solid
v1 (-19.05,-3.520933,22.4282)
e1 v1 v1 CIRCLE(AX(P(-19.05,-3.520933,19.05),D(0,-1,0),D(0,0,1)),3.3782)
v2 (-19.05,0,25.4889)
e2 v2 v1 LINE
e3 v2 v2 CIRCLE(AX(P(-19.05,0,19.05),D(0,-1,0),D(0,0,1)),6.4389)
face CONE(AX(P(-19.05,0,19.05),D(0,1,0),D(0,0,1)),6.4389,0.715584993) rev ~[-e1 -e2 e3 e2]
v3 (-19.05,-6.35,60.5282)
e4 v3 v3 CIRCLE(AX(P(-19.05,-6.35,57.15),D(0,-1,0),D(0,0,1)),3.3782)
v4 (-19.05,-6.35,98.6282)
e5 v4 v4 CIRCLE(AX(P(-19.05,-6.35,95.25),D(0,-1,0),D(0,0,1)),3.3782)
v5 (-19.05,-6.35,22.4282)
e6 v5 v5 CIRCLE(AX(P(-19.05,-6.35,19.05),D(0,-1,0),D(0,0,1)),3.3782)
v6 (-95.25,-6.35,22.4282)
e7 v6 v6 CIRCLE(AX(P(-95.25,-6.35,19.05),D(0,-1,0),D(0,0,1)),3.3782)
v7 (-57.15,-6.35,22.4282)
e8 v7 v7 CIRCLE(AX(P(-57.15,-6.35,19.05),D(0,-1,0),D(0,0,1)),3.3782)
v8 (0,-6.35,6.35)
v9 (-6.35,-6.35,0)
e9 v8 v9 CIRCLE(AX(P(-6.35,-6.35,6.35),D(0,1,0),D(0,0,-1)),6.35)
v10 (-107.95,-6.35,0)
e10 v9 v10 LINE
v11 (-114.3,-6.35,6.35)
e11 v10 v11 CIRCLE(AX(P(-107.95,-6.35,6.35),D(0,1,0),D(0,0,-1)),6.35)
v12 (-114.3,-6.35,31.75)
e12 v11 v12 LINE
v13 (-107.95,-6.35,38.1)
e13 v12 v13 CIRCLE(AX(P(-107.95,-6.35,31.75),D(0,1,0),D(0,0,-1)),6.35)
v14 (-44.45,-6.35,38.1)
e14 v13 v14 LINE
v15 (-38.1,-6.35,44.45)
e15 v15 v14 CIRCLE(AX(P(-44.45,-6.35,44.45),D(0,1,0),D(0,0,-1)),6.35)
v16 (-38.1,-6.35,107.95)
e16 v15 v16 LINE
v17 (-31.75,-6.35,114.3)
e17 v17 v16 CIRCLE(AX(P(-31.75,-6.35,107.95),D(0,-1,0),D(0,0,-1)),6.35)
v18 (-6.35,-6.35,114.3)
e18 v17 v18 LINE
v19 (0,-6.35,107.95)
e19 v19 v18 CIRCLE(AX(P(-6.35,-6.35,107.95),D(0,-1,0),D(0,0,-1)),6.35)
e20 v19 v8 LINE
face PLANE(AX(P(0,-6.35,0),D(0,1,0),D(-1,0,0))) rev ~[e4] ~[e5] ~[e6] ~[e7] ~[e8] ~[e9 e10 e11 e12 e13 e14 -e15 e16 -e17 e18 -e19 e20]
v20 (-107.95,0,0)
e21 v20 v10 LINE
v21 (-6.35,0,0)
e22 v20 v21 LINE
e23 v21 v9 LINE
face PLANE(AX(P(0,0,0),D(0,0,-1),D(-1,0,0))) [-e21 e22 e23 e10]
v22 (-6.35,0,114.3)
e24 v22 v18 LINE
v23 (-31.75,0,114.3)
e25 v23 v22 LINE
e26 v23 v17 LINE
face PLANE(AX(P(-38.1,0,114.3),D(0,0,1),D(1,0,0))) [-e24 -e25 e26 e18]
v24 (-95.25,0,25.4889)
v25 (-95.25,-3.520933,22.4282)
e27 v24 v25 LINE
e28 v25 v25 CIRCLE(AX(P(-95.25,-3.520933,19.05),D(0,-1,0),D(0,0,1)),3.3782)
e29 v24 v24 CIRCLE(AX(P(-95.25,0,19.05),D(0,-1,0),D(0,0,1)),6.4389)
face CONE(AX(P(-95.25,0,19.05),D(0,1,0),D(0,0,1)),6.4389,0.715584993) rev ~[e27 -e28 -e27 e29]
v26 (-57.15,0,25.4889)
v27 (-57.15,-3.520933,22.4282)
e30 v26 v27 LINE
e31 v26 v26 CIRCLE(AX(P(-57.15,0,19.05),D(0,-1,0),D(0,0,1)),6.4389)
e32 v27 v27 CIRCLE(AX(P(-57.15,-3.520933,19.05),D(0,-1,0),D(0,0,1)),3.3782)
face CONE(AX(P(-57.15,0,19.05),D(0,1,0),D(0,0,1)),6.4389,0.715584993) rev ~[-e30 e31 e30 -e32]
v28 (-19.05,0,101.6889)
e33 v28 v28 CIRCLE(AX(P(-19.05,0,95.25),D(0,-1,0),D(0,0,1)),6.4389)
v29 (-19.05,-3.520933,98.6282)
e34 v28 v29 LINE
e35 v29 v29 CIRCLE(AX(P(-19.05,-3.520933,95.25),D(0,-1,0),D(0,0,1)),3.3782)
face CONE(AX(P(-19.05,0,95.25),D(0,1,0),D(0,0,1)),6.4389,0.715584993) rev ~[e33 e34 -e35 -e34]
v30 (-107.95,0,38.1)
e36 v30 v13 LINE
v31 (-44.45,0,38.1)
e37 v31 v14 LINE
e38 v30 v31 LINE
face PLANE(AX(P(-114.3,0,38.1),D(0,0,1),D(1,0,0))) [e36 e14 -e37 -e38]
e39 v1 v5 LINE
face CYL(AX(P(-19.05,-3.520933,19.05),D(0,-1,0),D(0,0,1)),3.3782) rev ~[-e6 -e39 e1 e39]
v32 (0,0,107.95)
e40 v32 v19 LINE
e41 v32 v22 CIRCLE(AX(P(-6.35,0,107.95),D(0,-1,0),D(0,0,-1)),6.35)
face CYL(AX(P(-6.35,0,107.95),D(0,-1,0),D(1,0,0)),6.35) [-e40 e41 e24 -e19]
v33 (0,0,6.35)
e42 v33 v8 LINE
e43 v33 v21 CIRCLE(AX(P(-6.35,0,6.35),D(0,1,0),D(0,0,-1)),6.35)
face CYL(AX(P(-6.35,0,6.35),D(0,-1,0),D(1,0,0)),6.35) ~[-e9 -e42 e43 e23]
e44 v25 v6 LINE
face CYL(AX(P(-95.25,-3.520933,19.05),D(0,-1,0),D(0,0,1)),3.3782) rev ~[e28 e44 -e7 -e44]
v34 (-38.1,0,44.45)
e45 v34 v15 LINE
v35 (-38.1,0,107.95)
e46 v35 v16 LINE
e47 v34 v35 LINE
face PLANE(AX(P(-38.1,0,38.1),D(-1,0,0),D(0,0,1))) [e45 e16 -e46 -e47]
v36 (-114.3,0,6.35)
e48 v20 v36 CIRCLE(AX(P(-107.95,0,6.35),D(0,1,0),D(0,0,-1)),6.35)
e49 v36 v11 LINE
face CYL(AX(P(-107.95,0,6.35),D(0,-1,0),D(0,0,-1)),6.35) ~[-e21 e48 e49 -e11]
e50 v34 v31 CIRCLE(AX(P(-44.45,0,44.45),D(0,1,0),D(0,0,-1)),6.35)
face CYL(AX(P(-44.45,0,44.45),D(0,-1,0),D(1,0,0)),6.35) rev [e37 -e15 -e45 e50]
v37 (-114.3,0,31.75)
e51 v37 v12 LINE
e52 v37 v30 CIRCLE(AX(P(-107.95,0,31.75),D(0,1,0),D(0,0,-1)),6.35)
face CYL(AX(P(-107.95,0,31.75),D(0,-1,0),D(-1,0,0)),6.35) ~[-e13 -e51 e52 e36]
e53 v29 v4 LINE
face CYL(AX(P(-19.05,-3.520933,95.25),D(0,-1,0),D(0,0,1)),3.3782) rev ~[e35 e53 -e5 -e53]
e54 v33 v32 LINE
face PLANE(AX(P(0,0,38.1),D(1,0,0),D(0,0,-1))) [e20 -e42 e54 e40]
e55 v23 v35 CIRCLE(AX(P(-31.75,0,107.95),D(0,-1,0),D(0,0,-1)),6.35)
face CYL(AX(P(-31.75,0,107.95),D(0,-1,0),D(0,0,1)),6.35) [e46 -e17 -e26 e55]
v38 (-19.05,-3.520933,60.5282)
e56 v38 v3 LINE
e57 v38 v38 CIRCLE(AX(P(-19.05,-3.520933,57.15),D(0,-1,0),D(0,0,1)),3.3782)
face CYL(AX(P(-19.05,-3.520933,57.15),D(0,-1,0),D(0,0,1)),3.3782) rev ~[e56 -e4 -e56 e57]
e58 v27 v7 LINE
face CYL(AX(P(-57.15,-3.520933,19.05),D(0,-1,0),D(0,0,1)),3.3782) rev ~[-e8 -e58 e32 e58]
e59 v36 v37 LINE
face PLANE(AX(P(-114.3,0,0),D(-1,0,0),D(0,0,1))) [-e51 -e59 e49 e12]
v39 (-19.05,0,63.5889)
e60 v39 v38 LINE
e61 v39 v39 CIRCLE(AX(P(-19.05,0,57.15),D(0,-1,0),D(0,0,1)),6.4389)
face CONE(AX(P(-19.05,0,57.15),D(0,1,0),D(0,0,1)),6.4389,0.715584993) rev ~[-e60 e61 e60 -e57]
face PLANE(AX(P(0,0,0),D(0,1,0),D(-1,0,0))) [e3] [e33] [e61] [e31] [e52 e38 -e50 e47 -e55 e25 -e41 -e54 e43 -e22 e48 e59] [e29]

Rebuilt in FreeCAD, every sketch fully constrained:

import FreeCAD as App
import Part
import Sketcher
from FreeCAD import Vector
Q = App.Units.Quantity


def edges_at(feature, points):
    """Names of the edges that pass closest to the given points."""
    edges = feature.Shape.Edges
    near = lambda p: min(range(len(edges)), key=lambda i: edges[i].distToShape(Part.Vertex(*p))[0])
    return sorted({f"Edge{near(p) + 1}" for p in points})


def add_polygon(sketch, points):
    """Adds a closed chain of lines whose ends are joined by coincident constraints."""
    first, n = sketch.GeometryCount, len(points)
    for a, b in zip(points, points[1:] + points[:1]):
        sketch.addGeometry(Part.LineSegment(App.Vector(*a, 0), App.Vector(*b, 0)), False)
    for i in range(n):
        sketch.addConstraint(Sketcher.Constraint("Coincident", first + i, 2, first + (i + 1) % n, 1))

doc = App.newDocument("Part")
body = doc.addObject("PartDesign::Body", "Body")

# Sketch on XZ plane
sketch1 = body.newObject("Sketcher::SketchObject", "Sketch")
sketch1.AttachmentSupport = (doc.getObject("XZ_Plane"), [""])
sketch1.MapMode = "FlatFace"
add_polygon(sketch1, [(0, 114.3), (0, 0), (-114.3, 0), (-114.3, 38.1), (-38.1, 38.1), (-38.1, 114.3)])  # lines 0-5
sketch1.addConstraint([
    Sketcher.Constraint("Vertical", 0),
    Sketcher.Constraint("Horizontal", 1),
    Sketcher.Constraint("Vertical", 2),
    Sketcher.Constraint("Horizontal", 3),
    Sketcher.Constraint("Vertical", 4),
    Sketcher.Constraint("Horizontal", 5),
    Sketcher.Constraint("Coincident", 0, 2, -1, 1),
    Sketcher.Constraint("Equal", 1, 0),
    Sketcher.Constraint("Equal", 5, 2),
    Sketcher.Constraint("DistanceX", 1, 2, 1, 1, Q("4.5 in")),
    Sketcher.Constraint("DistanceX", 5, 1, 5, 2, Q("1.5 in")),
])
pad1 = body.newObject("PartDesign::Pad", "Pad")
pad1.Profile = sketch1
pad1.Length = Q("0.25 in")

# Sketch on XZ plane
sketch2 = body.newObject("Sketcher::SketchObject", "Sketch001")
sketch2.AttachmentSupport = (doc.getObject("XZ_Plane"), [""])
sketch2.MapMode = "FlatFace"
sketch2.addGeometry([
    Part.Circle(Vector(-19.05, 95.25, 0), Vector(0, 0, 1), 3.3782),  # 0
    Part.Circle(Vector(-19.05, 57.15, 0), Vector(0, 0, 1), 3.3782),  # 1
    Part.Circle(Vector(-57.15, 19.05, 0), Vector(0, 0, 1), 3.3782),  # 2
    Part.Circle(Vector(-95.25, 19.05, 0), Vector(0, 0, 1), 3.3782),  # 3
    Part.Circle(Vector(-19.05, 19.05, 0), Vector(0, 0, 1), 3.3782),  # 4
], False)
sketch2.addConstraint([
    Sketcher.Constraint("Equal", 0, 1),
    Sketcher.Constraint("Equal", 1, 2),
    Sketcher.Constraint("Equal", 2, 3),
    Sketcher.Constraint("Equal", 3, 4),
    Sketcher.Constraint("Horizontal", 2, 3, 3, 3),
    Sketcher.Constraint("Horizontal", 3, 3, 4, 3),
    Sketcher.Constraint("Vertical", 0, 3, 1, 3),
    Sketcher.Constraint("Vertical", 1, 3, 4, 3),
    Sketcher.Constraint("Diameter", 0, Q("0.266 in")),
    Sketcher.Constraint("DistanceY", 2, 3, 0, 3, Q("3 in")),
    Sketcher.Constraint("DistanceX", 3, 3, 1, 3, Q("3 in")),
    Sketcher.Constraint("DistanceY", 1, 3, 0, 3, Q("1.5 in")),
    Sketcher.Constraint("DistanceX", 2, 3, 1, 3, Q("1.5 in")),
    Sketcher.Constraint("DistanceX", 0, 3, -1, 1, Q("0.75 in")),
    Sketcher.Constraint("DistanceY", -1, 1, 0, 3, Q("3.75 in")),
])
doc.recompute()
hole = body.newObject("PartDesign::Hole", "Hole")
hole.Profile = sketch2
hole.ThreadType = "None"
hole.Diameter = Q("0.266 in")
hole.DepthType = "ThroughAll"
hole.HoleCutType = "Countersink"
hole.HoleCutDiameter = Q("0.507 in")
hole.HoleCutCountersinkAngle = 82
hole.Reversed = True
doc.recompute()

fillet = body.newObject("PartDesign::Fillet", "Fillet")
fillet.Base = (hole, edges_at(hole, [
    (0, -3.175, 114.3),
    (0, -3.175, 0),
    (-38.1, -3.175, 114.3),
    (-38.1, -3.175, 38.1),
    (-114.3, -3.175, 0),
    (-114.3, -3.175, 38.1),
]))
fillet.Radius = Q("0.25 in")

doc.recompute()
